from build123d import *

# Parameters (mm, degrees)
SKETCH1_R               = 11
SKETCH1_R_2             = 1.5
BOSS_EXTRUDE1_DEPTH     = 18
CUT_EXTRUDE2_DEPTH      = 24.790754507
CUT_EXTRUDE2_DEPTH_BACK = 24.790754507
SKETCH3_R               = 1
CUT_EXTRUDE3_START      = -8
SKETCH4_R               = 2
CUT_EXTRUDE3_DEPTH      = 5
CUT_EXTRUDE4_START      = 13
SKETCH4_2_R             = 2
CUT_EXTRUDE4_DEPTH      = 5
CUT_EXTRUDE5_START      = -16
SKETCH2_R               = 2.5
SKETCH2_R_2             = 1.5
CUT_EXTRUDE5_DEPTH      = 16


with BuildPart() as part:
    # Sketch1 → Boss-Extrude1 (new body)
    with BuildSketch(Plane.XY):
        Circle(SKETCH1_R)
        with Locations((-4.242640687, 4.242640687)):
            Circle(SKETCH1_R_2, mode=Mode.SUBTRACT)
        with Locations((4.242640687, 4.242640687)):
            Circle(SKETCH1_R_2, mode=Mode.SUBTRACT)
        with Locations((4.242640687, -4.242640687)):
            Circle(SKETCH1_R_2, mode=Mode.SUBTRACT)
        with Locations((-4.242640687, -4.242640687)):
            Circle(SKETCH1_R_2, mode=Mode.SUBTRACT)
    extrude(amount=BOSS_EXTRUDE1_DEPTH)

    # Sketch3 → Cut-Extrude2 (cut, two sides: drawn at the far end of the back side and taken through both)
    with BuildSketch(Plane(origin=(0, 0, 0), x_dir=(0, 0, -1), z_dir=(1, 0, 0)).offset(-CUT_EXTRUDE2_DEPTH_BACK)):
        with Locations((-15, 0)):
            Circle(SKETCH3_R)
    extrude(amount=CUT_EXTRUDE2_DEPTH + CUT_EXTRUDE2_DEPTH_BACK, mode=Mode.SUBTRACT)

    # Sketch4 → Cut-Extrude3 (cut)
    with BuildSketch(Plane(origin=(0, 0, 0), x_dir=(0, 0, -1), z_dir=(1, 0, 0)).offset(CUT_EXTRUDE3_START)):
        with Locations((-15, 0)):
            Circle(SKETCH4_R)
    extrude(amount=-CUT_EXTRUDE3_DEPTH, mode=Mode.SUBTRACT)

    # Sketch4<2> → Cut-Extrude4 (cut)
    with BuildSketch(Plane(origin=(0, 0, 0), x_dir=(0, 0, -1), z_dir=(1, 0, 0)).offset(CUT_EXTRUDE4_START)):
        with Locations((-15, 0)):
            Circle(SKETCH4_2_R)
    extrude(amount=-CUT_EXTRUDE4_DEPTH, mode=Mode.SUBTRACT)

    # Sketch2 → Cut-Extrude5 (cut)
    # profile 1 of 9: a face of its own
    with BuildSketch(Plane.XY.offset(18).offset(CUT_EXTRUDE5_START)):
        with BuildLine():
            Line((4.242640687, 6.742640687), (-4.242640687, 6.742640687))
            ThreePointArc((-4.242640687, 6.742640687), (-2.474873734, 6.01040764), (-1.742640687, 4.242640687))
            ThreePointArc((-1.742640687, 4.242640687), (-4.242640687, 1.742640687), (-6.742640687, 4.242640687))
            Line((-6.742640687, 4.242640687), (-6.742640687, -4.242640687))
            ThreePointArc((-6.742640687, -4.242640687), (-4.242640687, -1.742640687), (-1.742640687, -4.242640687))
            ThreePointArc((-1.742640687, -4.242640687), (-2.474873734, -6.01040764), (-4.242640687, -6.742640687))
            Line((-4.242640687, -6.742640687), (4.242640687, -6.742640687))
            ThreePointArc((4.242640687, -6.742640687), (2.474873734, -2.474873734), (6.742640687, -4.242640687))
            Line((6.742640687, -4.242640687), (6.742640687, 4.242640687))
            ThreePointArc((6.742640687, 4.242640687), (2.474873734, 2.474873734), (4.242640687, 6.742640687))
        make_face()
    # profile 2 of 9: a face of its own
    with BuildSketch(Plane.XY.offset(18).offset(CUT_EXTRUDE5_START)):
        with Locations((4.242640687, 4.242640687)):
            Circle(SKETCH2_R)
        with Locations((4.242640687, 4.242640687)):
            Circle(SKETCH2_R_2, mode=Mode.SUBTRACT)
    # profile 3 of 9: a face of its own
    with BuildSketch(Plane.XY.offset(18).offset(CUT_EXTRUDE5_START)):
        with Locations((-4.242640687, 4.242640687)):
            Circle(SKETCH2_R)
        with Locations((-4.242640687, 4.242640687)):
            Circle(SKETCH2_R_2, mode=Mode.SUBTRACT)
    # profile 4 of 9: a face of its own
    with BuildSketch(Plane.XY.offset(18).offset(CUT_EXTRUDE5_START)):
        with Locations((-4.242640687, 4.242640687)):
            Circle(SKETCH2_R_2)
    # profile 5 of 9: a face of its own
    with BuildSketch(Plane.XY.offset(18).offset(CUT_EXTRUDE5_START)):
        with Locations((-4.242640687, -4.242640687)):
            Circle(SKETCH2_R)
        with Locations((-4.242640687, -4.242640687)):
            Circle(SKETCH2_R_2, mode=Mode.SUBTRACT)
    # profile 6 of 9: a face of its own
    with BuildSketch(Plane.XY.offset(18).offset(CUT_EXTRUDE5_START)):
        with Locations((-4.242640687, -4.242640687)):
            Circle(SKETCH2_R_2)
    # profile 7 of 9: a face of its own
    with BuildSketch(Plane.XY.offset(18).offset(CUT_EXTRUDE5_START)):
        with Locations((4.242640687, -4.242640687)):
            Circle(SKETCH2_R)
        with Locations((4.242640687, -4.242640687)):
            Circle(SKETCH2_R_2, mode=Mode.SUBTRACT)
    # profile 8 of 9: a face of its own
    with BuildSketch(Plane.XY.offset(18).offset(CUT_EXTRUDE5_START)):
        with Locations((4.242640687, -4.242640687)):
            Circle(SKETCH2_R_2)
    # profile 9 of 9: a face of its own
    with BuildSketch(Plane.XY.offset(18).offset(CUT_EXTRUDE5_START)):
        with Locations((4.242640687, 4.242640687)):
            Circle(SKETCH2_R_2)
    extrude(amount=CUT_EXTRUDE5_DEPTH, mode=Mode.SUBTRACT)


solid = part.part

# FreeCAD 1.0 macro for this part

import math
import FreeCAD as App
import Part
import Sketcher

doc = App.newDocument("Part")
body = doc.addObject("PartDesign::Body", "Body")

sketch1 = body.newObject("Sketcher::SketchObject", "Sketch")
sketch1.AttachmentSupport = (doc.getObject("XY_Plane"), [""])
sketch1.MapMode = "FlatFace"
sketch1.addGeometry([
    Part.Circle(App.Vector(0, 0, 0), App.Vector(0, 0, 1), 11),
    Part.Circle(App.Vector(-4.2, -4.2, 0), App.Vector(0, 0, 1), 1.5),
    Part.Circle(App.Vector(4.2, -4.2, 0), App.Vector(0, 0, 1), 1.5),
    Part.Circle(App.Vector(-4.2, 4.2, 0), App.Vector(0, 0, 1), 1.5),
    Part.Circle(App.Vector(4.2, 4.2, 0), App.Vector(0, 0, 1), 1.5),
], False)
sketch1.addConstraint([
    Sketcher.Constraint("Coincident", 0, 3, -1, 1),
    Sketcher.Constraint("Equal", 1, 2),
    Sketcher.Constraint("Equal", 2, 3),
    Sketcher.Constraint("Equal", 3, 4),
    Sketcher.Constraint("Symmetric", 2, 3, 3, 3, -1, 1),
    Sketcher.Constraint("Symmetric", 1, 3, 4, 3, -1, 1),
    Sketcher.Constraint("Symmetric", 1, 3, 2, 3, -2),
    Sketcher.Constraint("Diameter", 0, 22.0),
    Sketcher.Constraint("Diameter", 1, 3.0),
    Sketcher.Constraint("DistanceX", 1, 3, -1, 1, 4.242641),
    Sketcher.Constraint("DistanceY", 1, 3, -1, 1, 4.242641),
])
pad1 = body.newObject("PartDesign::Pad", "Pad")
pad1.Profile = sketch1
pad1.Length = 18

sketch2 = body.newObject("Sketcher::SketchObject", "Sketch001")
sketch2.AttachmentSupport = (doc.getObject("YZ_Plane"), [""])
sketch2.MapMode = "FlatFace"
sketch2.addGeometry(Part.Circle(App.Vector(0, 15, 0), App.Vector(0, 0, 1), 1), False)
sketch2.addConstraint([
    Sketcher.Constraint("PointOnObject", 0, 3, -2),
    Sketcher.Constraint("Diameter", 0, 2.0),
    Sketcher.Constraint("DistanceY", -1, 1, 0, 3, 15.0),
])
pocket1 = body.newObject("PartDesign::Pocket", "Pocket")
pocket1.Profile = sketch2
pocket1.Type = "ThroughAll"
pocket1.Midplane = True

sketch3 = body.newObject("Sketcher::SketchObject", "Sketch002")
sketch3.AttachmentSupport = (doc.getObject("YZ_Plane"), [""])
sketch3.MapMode = "FlatFace"
sketch3.AttachmentOffset = App.Placement(App.Vector(0, 0, -8), App.Rotation())
sketch3.addGeometry(Part.Circle(App.Vector(0, 15, 0), App.Vector(0, 0, 1), 2), False)
sketch3.addConstraint([
    Sketcher.Constraint("PointOnObject", 0, 3, -2),
    Sketcher.Constraint("Diameter", 0, 4.0),
    Sketcher.Constraint("DistanceY", -1, 1, 0, 3, 15.0),
])
pocket2 = body.newObject("PartDesign::Pocket", "Pocket001")
pocket2.Profile = sketch3
pocket2.Length = 5

sketch4 = body.newObject("Sketcher::SketchObject", "Sketch003")
sketch4.AttachmentSupport = (doc.getObject("YZ_Plane"), [""])
sketch4.MapMode = "FlatFace"
sketch4.AttachmentOffset = App.Placement(App.Vector(0, 0, 13), App.Rotation())
sketch4.addGeometry(Part.Circle(App.Vector(0, 15, 0), App.Vector(0, 0, 1), 2), False)
sketch4.addConstraint([
    Sketcher.Constraint("PointOnObject", 0, 3, -2),
    Sketcher.Constraint("Diameter", 0, 4.0),
    Sketcher.Constraint("DistanceY", -1, 1, 0, 3, 15.0),
])
pocket3 = body.newObject("PartDesign::Pocket", "Pocket002")
pocket3.Profile = sketch4
pocket3.Length = 5

sketch5 = body.newObject("Sketcher::SketchObject", "Sketch004")
sketch5.AttachmentSupport = (doc.getObject("XY_Plane"), [""])
sketch5.MapMode = "FlatFace"
sketch5.AttachmentOffset = App.Placement(App.Vector(0, 0, 2), App.Rotation())
sketch5.addGeometry([
    Part.LineSegment(App.Vector(4.2, 6.7, 0), App.Vector(-4.2, 6.7, 0)),
    Part.ArcOfCircle(Part.Circle(App.Vector(-4.2, 4.2, 0), App.Vector(0, 0, 1), 2.5), math.radians(90), math.radians(180)),
    Part.LineSegment(App.Vector(-6.7, 4.2, 0), App.Vector(-6.7, -4.2, 0)),
    Part.ArcOfCircle(Part.Circle(App.Vector(-4.2, -4.2, 0), App.Vector(0, 0, 1), 2.5), math.radians(180), math.radians(270)),
    Part.LineSegment(App.Vector(-4.2, -6.7, 0), App.Vector(4.2, -6.7, 0)),
    Part.ArcOfCircle(Part.Circle(App.Vector(4.2, -4.2, 0), App.Vector(0, 0, 1), 2.5), math.radians(-90), math.radians(0)),
    Part.LineSegment(App.Vector(6.7, -4.2, 0), App.Vector(6.7, 4.2, 0)),
    Part.ArcOfCircle(Part.Circle(App.Vector(4.2, 4.2, 0), App.Vector(0, 0, 1), 2.5), math.radians(0), math.radians(90)),
], False)
sketch5.addConstraint([
    Sketcher.Constraint("Tangent", 0, 2, 1, 1),
    Sketcher.Constraint("Tangent", 1, 2, 2, 1),
    Sketcher.Constraint("Tangent", 2, 2, 3, 1),
    Sketcher.Constraint("Tangent", 3, 2, 4, 1),
    Sketcher.Constraint("Tangent", 4, 2, 5, 1),
    Sketcher.Constraint("Tangent", 5, 2, 6, 1),
    Sketcher.Constraint("Tangent", 6, 2, 7, 1),
    Sketcher.Constraint("Tangent", 7, 2, 0, 1),
    Sketcher.Constraint("Horizontal", 0),
    Sketcher.Constraint("Vertical", 2),
    Sketcher.Constraint("Horizontal", 4),
    Sketcher.Constraint("Vertical", 6),
    Sketcher.Constraint("Equal", 1, 3),
    Sketcher.Constraint("Equal", 3, 5),
    Sketcher.Constraint("Equal", 5, 7),
    Sketcher.Constraint("Symmetric", 1, 3, 5, 3, -1, 1),
    Sketcher.Constraint("Equal", 4, 2),
    Sketcher.Constraint("Radius", 1, 2.5),
    Sketcher.Constraint("DistanceX", 0, 2, 0, 1, 8.485281),
])
pocket4 = body.newObject("PartDesign::Pocket", "Pocket003")
pocket4.Profile = sketch5
pocket4.Length = 16
pocket4.Reversed = True

doc.recompute()
